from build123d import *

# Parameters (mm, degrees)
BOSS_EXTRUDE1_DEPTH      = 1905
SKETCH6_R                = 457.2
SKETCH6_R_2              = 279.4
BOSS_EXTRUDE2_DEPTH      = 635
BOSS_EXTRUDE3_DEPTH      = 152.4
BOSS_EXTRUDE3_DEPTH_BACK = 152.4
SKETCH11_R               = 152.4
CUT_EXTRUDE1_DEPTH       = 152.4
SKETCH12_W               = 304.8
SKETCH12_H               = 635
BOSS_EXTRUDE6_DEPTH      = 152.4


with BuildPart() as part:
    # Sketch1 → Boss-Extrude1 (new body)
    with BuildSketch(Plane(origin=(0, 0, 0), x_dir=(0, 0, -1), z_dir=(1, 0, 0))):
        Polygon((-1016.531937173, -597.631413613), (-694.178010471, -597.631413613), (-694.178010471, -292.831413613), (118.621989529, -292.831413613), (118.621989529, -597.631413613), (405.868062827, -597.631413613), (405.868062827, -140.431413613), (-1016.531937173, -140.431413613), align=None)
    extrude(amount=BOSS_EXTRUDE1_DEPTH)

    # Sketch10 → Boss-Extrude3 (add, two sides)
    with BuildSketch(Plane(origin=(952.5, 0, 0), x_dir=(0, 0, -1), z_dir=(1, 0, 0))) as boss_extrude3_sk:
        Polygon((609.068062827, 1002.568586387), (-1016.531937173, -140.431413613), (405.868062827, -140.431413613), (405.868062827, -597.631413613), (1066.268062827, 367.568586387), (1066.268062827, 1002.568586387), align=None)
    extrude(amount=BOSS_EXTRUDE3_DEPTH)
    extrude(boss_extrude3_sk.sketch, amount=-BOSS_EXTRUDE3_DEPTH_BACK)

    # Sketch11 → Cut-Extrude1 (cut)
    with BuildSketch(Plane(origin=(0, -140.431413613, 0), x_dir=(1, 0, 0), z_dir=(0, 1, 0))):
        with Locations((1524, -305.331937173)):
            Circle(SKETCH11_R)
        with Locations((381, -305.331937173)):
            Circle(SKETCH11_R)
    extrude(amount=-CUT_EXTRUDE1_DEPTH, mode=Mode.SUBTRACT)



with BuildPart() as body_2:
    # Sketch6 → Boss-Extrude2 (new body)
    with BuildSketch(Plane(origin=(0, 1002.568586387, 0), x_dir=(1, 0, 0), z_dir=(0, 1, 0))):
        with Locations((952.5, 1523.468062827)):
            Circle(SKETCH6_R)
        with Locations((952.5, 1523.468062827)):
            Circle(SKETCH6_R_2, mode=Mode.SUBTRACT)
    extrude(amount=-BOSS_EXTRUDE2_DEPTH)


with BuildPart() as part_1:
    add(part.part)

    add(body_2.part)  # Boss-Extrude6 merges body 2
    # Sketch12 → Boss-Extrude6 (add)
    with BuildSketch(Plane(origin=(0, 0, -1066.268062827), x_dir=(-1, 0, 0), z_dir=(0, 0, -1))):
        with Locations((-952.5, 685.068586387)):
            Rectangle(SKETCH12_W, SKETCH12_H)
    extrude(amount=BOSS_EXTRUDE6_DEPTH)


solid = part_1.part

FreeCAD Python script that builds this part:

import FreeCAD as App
import Part
import Sketcher
Q = App.Units.Quantity


def add_polygon(sketch, points):
    """Adds a closed chain of lines whose ends are joined by coincident constraints."""
    first, n = sketch.GeometryCount, len(points)
    for a, b in zip(points, points[1:] + points[:1]):
        sketch.addGeometry(Part.LineSegment(App.Vector(*a, 0), App.Vector(*b, 0)), False)
    for i in range(n):
        sketch.addConstraint(Sketcher.Constraint("Coincident", first + i, 2, first + (i + 1) % n, 1))

doc = App.newDocument("Part")
params = doc.addObject("Spreadsheet::Sheet", "Params")
for row, (alias, value) in enumerate([
    ("sketch1_width", "12 in"),
    ("sketch1_width2", "18 in"),
    ("sketch1_height", "32 in"),
    ("sketch1_height2", "56 in"),
    ("pad1_length", "75 in"),
    ("sketch2_width", "18 in"),
    ("sketch2_width2", "25 in"),
    ("sketch2_height", "56 in"),
    ("pad2_length", "6 in"),
    ("pad2_length2", "6 in"),
    ("sketch3_diameter", "12 in"),
    ("pocket1_length", "6 in"),
    ("sketch4_diameter", "36 in"),
    ("sketch4_diameter2", "22 in"),
    ("pad3_length", "25 in"),
    ("sketch5_width", "12 in"),
    ("sketch5_height", "25 in"),
    ("pad4_length", "6 in"),
], start=1):
    params.set(f"A{row}", alias)
    params.set(f"B{row}", "=" + value)
    params.setAlias(f"B{row}", alias)

body = doc.addObject("PartDesign::Body", "Body")

# Sketch on YZ plane
sketch1 = body.newObject("Sketcher::SketchObject", "Sketch")
sketch1.AttachmentSupport = (doc.getObject("YZ_Plane"), [""])
sketch1.MapMode = "FlatFace"
add_polygon(sketch1, [(-598, 1017), (-598, 694), (-293, 694), (-293, -119), (-598, -119), (-598, -406), (-140, -406), (-140, 1017)])  # lines 0-7
sketch1.addConstraint(Sketcher.Constraint("Vertical", 0))
sketch1.addConstraint(Sketcher.Constraint("Horizontal", 1))
sketch1.addConstraint(Sketcher.Constraint("Vertical", 2))
sketch1.addConstraint(Sketcher.Constraint("Horizontal", 3))
sketch1.addConstraint(Sketcher.Constraint("Vertical", 4))
sketch1.addConstraint(Sketcher.Constraint("Horizontal", 5))
sketch1.addConstraint(Sketcher.Constraint("Vertical", 6))
sketch1.addConstraint(Sketcher.Constraint("Horizontal", 7))
sketch1.addConstraint(Sketcher.Constraint("Vertical", 0, 2, 3, 2))
sketch1.addConstraint(Sketcher.Constraint("DistanceX", 1, 1, 1, 2, Q("12 in")))
sketch1.addConstraint(Sketcher.Constraint("DistanceX", 5, 1, 5, 2, Q("18 in")))
sketch1.addConstraint(Sketcher.Constraint("DistanceY", 2, 2, 2, 1, Q("32 in")))
sketch1.addConstraint(Sketcher.Constraint("DistanceY", 6, 1, 6, 2, Q("56 in")))
sketch1.addConstraint(Sketcher.Constraint("DistanceY", 0, 2, 0, 1, 322.353927))
sketch1.addConstraint(Sketcher.Constraint("DistanceY", -1, 1, 0, 2, 694.17801))
sketch1.addConstraint(Sketcher.Constraint("DistanceX", 0, 2, -1, 1, 597.631414))
sketch1.setExpression("Constraints[17]", "Params.sketch1_width")
sketch1.setExpression("Constraints[18]", "Params.sketch1_width2")
sketch1.setExpression("Constraints[19]", "Params.sketch1_height")
sketch1.setExpression("Constraints[20]", "Params.sketch1_height2")
pad1 = body.newObject("PartDesign::Pad", "Pad")
pad1.Profile = sketch1
pad1.setExpression("Length", "Params.pad1_length")

# Sketch on YZ plane
sketch2 = body.newObject("Sketcher::SketchObject", "Sketch001")
sketch2.AttachmentSupport = (doc.getObject("YZ_Plane"), [""])
sketch2.MapMode = "FlatFace"
sketch2.AttachmentOffset = App.Placement(App.Vector(0, 0, 37.5 * 25.4), App.Rotation())
add_polygon(sketch2, [(1003, -609), (-140, 1017), (-140, -406), (-598, -406), (368, -1066), (1003, -1066)])  # lines 0-5
sketch2.addConstraint(Sketcher.Constraint("Vertical", 1))
sketch2.addConstraint(Sketcher.Constraint("Horizontal", 2))
sketch2.addConstraint(Sketcher.Constraint("Horizontal", 4))
sketch2.addConstraint(Sketcher.Constraint("Vertical", 5))
sketch2.addConstraint(Sketcher.Constraint("Equal", 2, 5))
sketch2.addConstraint(Sketcher.Constraint("DistanceX", 2, 2, 2, 1, Q("18 in")))
sketch2.addConstraint(Sketcher.Constraint("DistanceX", 4, 1, 4, 2, Q("25 in")))
sketch2.addConstraint(Sketcher.Constraint("DistanceY", 1, 2, 1, 1, Q("56 in")))
sketch2.addConstraint(Sketcher.Constraint("DistanceX", 1, 2, 3, 2, Q("20 in")))
sketch2.addConstraint(Sketcher.Constraint("DistanceY", 3, 2, 1, 2, Q("26 in")))
sketch2.addConstraint(Sketcher.Constraint("DistanceX", 0, 2, -1, 1, 140.431414))
sketch2.addConstraint(Sketcher.Constraint("DistanceY", -1, 1, 0, 2, 1016.531937))
sketch2.setExpression("Constraints[11]", "Params.sketch2_width")
sketch2.setExpression("Constraints[12]", "Params.sketch2_width2")
sketch2.setExpression("Constraints[13]", "Params.sketch2_height")
pad2 = body.newObject("PartDesign::Pad", "Pad001")
pad2.Profile = sketch2
pad2.Type = "TwoLengths"
pad2.setExpression("Length", "Params.pad2_length")
pad2.setExpression("Length2", "Params.pad2_length2")

# Sketch on XZ plane
sketch3 = body.newObject("Sketcher::SketchObject", "Sketch002")
sketch3.AttachmentSupport = (doc.getObject("XZ_Plane"), [""])
sketch3.MapMode = "FlatFace"
sketch3.AttachmentOffset = App.Placement(App.Vector(0, 0, 140.431414), App.Rotation())
sketch3.addGeometry(Part.Circle(App.Vector(1524, 305, 0), App.Vector(0, 0, 1), 152), False)
sketch3.addGeometry(Part.Circle(App.Vector(381, 305, 0), App.Vector(0, 0, 1), 152), False)
sketch3.addConstraint(Sketcher.Constraint("Equal", 0, 1))
sketch3.addConstraint(Sketcher.Constraint("Horizontal", 0, 3, 1, 3))
sketch3.addConstraint(Sketcher.Constraint("Diameter", 0, Q("12 in")))
sketch3.addConstraint(Sketcher.Constraint("DistanceX", -1, 1, 0, 3, Q("60 in")))
sketch3.addConstraint(Sketcher.Constraint("DistanceX", -1, 1, 1, 3, Q("15 in")))
sketch3.addConstraint(Sketcher.Constraint("DistanceY", -1, 1, 0, 3, 305.331937))
sketch3.setExpression("Constraints[2]", "Params.sketch3_diameter")
pocket1 = body.newObject("PartDesign::Pocket", "Pocket")
pocket1.Profile = sketch3
pocket1.setExpression("Length", "Params.pocket1_length")
pocket1.Reversed = True
body2 = doc.addObject("PartDesign::Body", "Body001")

# Sketch on XZ plane
sketch4 = body2.newObject("Sketcher::SketchObject", "Sketch003")
sketch4.AttachmentSupport = (doc.getObject("XZ_Plane001"), [""])
sketch4.MapMode = "FlatFace"
sketch4.AttachmentOffset = App.Placement(App.Vector(0, 0, -1002.568586), App.Rotation())
sketch4.addGeometry(Part.Circle(App.Vector(952, -1523, 0), App.Vector(0, 0, 1), 457), False)
sketch4.addGeometry(Part.Circle(App.Vector(952, -1523, 0), App.Vector(0, 0, 1), 279), False)
sketch4.addConstraint(Sketcher.Constraint("Coincident", 1, 3, 0, 3))
sketch4.addConstraint(Sketcher.Constraint("Diameter", 0, Q("36 in")))
sketch4.addConstraint(Sketcher.Constraint("Diameter", 1, Q("22 in")))
sketch4.addConstraint(Sketcher.Constraint("DistanceX", -1, 1, 0, 3, Q("37.5 in")))
sketch4.addConstraint(Sketcher.Constraint("DistanceY", 0, 3, -1, 1, 1523.468063))
sketch4.setExpression("Constraints[1]", "Params.sketch4_diameter")
sketch4.setExpression("Constraints[2]", "Params.sketch4_diameter2")
pad3 = body2.newObject("PartDesign::Pad", "Pad002")
pad3.Profile = sketch4
pad3.setExpression("Length", "Params.pad3_length")
body.AllowCompound = True
doc.recompute()

boolean = body.newObject("PartDesign::Boolean", "Boolean")
boolean.Type = "Fuse"
boolean.addObjects([body2])

# Sketch on XY plane
sketch5 = body.newObject("Sketcher::SketchObject", "Sketch004")
sketch5.AttachmentSupport = (doc.getObject("XY_Plane"), [""])
sketch5.MapMode = "FlatFace"
sketch5.AttachmentOffset = App.Placement(App.Vector(0, 0, -1066.268063), App.Rotation())
add_polygon(sketch5, [(1105, 1003), (1105, 368), (800, 368), (800, 1003)])  # lines 0-3
sketch5.addConstraint(Sketcher.Constraint("Vertical", 0))
sketch5.addConstraint(Sketcher.Constraint("Horizontal", 1))
sketch5.addConstraint(Sketcher.Constraint("Vertical", 2))
sketch5.addConstraint(Sketcher.Constraint("Horizontal", 3))
sketch5.addConstraint(Sketcher.Constraint("DistanceX", 1, 2, 1, 1, Q("12 in")))
sketch5.addConstraint(Sketcher.Constraint("DistanceY", 0, 2, 0, 1, Q("25 in")))
sketch5.addConstraint(Sketcher.Constraint("DistanceX", -1, 1, 0, 2, Q("43.5 in")))
sketch5.addConstraint(Sketcher.Constraint("DistanceY", -1, 1, 0, 2, 367.568586))
sketch5.setExpression("Constraints[8]", "Params.sketch5_width")
sketch5.setExpression("Constraints[9]", "Params.sketch5_height")
pad4 = body.newObject("PartDesign::Pad", "Pad003")
pad4.Profile = sketch5
pad4.setExpression("Length", "Params.pad4_length")
pad4.Reversed = True

doc.recompute()
